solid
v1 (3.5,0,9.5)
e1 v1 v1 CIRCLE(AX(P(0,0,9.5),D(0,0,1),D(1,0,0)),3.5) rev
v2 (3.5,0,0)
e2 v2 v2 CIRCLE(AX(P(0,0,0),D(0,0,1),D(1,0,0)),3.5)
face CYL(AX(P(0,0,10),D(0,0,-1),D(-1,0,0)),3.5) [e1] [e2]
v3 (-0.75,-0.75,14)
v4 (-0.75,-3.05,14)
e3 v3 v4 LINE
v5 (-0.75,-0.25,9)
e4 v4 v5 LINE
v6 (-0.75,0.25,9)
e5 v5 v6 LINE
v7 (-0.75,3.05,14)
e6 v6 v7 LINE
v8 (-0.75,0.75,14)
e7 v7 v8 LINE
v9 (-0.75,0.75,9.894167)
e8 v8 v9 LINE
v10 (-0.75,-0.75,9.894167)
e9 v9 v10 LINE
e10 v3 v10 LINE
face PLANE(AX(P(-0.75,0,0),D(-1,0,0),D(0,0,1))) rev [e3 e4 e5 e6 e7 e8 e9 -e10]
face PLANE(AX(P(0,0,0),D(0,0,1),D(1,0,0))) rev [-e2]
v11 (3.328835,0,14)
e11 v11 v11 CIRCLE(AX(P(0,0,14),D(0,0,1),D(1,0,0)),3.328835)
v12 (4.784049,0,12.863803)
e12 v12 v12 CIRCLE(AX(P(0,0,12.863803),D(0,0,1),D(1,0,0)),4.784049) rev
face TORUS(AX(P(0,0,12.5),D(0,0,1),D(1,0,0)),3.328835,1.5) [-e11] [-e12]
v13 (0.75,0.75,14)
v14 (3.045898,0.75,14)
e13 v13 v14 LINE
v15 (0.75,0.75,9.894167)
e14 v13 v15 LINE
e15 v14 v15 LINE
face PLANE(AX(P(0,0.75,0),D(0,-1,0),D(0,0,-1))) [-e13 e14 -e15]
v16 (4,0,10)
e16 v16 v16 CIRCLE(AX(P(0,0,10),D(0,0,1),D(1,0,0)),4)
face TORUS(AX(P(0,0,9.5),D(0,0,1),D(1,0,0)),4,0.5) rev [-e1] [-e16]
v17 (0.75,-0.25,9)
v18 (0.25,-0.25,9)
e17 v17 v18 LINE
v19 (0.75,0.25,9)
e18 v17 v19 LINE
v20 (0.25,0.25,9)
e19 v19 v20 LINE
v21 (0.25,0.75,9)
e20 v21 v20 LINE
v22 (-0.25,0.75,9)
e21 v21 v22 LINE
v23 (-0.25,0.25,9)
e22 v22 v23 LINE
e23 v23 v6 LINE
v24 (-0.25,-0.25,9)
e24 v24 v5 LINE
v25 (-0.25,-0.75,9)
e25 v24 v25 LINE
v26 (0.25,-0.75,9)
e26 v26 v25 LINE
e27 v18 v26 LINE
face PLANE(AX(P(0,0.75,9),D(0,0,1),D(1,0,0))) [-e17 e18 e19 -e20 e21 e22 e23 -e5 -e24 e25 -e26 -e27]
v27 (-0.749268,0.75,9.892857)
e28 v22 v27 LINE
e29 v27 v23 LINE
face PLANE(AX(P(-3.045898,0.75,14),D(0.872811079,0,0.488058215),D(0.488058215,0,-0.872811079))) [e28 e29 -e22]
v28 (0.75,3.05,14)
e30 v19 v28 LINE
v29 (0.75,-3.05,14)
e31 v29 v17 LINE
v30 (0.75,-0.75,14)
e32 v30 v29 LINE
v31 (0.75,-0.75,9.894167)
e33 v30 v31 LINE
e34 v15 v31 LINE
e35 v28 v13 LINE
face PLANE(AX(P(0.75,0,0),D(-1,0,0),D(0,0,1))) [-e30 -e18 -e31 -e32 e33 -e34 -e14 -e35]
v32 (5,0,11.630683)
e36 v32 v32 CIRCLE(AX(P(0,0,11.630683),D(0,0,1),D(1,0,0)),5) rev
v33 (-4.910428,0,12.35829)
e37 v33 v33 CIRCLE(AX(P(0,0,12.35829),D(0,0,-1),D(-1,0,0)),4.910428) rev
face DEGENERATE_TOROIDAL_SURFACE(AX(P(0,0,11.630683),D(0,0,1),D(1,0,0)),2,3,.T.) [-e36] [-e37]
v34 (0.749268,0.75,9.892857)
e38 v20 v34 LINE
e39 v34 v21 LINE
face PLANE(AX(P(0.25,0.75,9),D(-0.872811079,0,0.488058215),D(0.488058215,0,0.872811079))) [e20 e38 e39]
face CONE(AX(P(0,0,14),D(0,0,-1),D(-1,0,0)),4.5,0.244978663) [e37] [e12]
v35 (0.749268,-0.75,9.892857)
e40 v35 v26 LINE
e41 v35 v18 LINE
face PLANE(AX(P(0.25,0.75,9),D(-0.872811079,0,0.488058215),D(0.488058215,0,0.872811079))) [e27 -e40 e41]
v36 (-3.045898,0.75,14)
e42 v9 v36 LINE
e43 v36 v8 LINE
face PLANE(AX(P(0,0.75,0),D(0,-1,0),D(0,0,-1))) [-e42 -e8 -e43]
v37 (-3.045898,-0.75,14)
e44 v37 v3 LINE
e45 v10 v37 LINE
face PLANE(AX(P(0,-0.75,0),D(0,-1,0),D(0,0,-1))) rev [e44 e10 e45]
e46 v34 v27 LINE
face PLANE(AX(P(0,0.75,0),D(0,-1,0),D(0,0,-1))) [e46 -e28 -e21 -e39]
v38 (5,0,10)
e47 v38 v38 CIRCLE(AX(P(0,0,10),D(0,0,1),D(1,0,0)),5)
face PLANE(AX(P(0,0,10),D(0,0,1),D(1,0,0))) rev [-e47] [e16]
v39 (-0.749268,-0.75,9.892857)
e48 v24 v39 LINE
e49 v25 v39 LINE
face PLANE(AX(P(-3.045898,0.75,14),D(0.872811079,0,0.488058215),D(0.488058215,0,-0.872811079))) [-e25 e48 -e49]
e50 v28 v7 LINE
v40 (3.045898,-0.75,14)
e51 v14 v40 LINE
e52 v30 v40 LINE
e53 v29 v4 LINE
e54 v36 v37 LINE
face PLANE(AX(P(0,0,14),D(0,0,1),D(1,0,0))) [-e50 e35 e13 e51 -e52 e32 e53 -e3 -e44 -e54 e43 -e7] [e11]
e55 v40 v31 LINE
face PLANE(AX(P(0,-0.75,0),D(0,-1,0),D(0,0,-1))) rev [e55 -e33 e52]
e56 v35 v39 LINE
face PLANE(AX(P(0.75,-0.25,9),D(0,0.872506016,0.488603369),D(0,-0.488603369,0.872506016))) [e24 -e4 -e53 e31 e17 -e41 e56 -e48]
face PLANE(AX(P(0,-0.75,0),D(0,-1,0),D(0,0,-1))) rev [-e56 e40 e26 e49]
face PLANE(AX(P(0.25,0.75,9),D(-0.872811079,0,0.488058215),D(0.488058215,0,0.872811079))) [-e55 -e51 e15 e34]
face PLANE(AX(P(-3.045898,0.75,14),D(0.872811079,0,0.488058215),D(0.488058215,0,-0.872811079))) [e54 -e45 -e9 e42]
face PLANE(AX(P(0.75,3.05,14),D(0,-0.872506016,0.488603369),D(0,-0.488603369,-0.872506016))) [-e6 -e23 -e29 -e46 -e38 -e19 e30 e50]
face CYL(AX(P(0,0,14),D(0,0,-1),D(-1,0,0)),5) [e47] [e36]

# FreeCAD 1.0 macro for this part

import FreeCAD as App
import Part
import Sketcher
Q = App.Units.Quantity


def edges_at(feature, points):
    """Names of the edges that pass closest to the given points."""
    edges = feature.Shape.Edges
    near = lambda p: min(range(len(edges)), key=lambda i: edges[i].distToShape(Part.Vertex(*p))[0])
    return sorted({f"Edge{near(p) + 1}" for p in points})

doc = App.newDocument("Part")
body = doc.addObject("PartDesign::Body", "Body")

# Sketch on XY plane
sketch1 = body.newObject("Sketcher::SketchObject", "Sketch")
sketch1.AttachmentSupport = (doc.getObject("XY_Plane"), [""])
sketch1.MapMode = "FlatFace"
sketch1.addGeometry(Part.Circle(App.Vector(0, 0, 0), App.Vector(0, 0, 1), 3.5), False)
sketch1.addConstraint(Sketcher.Constraint("Coincident", 0, 3, -1, 1))
sketch1.addConstraint(Sketcher.Constraint("Diameter", 0, Q("7 mm")))
pad1 = body.newObject("PartDesign::Pad", "Pad")
pad1.Profile = sketch1
pad1.Length = 10

# Sketch on XY plane
sketch2 = body.newObject("Sketcher::SketchObject", "Sketch001")
sketch2.AttachmentSupport = (doc.getObject("XY_Plane"), [""])
sketch2.MapMode = "FlatFace"
sketch2.AttachmentOffset = App.Placement(App.Vector(0, 0, 10), App.Rotation())
sketch2.addGeometry(Part.Circle(App.Vector(0, 0, 0), App.Vector(0, 0, 1), 5), False)
sketch2.addConstraint(Sketcher.Constraint("Coincident", 0, 3, -1, 1))
sketch2.addConstraint(Sketcher.Constraint("Diameter", 0, Q("10 mm")))
pad2 = body.newObject("PartDesign::Pad", "Pad001")
pad2.Profile = sketch2
pad2.Length = 4
doc.recompute()

chamfer = body.newObject("PartDesign::Chamfer", "Chamfer")
chamfer.Base = (pad2, edges_at(pad2, [(-5, 0, 14)]))
chamfer.ChamferType = "Two distances"
chamfer.Size = 2
chamfer.Size2 = 0.5
doc.recompute()

fillet = body.newObject("PartDesign::Fillet", "Fillet")
fillet.Base = (chamfer, edges_at(chamfer, [(-4.5, 0, 14)]))
fillet.Radius = 1.5
doc.recompute()

fillet2 = body.newObject("PartDesign::Fillet", "Fillet001")
fillet2.Base = (fillet, edges_at(fillet, [(-5, 0, 12)]))
fillet2.Radius = 3
doc.recompute()

fillet3 = body.newObject("PartDesign::Fillet", "Fillet002")
fillet3.Base = (fillet2, edges_at(fillet2, [(-3.5, 0, 10)]))
fillet3.Radius = 0.5

# Sketch on XZ plane
sketch3 = body.newObject("Sketcher::SketchObject", "Sketch002")
sketch3.AttachmentSupport = (doc.getObject("XZ_Plane"), [""])
sketch3.MapMode = "FlatFace"
sketch3.addGeometry(Part.LineSegment(App.Vector(-3, 14, 0), App.Vector(3, 14, 0)), False)
sketch3.addGeometry(Part.LineSegment(App.Vector(3, 14, 0), App.Vector(0.2, 9, 0)), False)
sketch3.addGeometry(Part.LineSegment(App.Vector(0.2, 9, 0), App.Vector(-0.2, 9, 0)), False)
sketch3.addGeometry(Part.LineSegment(App.Vector(-0.2, 9, 0), App.Vector(-3, 14, 0)), False)
sketch3.addConstraint(Sketcher.Constraint("Coincident", 0, 2, 1, 1))
sketch3.addConstraint(Sketcher.Constraint("Coincident", 1, 2, 2, 1))
sketch3.addConstraint(Sketcher.Constraint("Coincident", 2, 2, 3, 1))
sketch3.addConstraint(Sketcher.Constraint("Coincident", 3, 2, 0, 1))
sketch3.addConstraint(Sketcher.Constraint("Horizontal", 0))
sketch3.addConstraint(Sketcher.Constraint("Horizontal", 2))
sketch3.addConstraint(Sketcher.Constraint("Equal", 1, 3))
sketch3.addConstraint(Sketcher.Constraint("DistanceX", 2, 2, 2, 1, Q("0.5 mm")))
sketch3.addConstraint(Sketcher.Constraint("DistanceY", -1, 1, 0, 2, Q("14 mm")))
sketch3.addConstraint(Sketcher.Constraint("DistanceY", -1, 1, 1, 2, Q("9 mm")))
sketch3.addConstraint(Sketcher.Constraint("DistanceX", -1, 1, 1, 2, Q("0.25 mm")))
sketch3.addConstraint(Sketcher.Constraint("DistanceX", -1, 1, 0, 2, Q("3.045898 mm")))
pocket1 = body.newObject("PartDesign::Pocket", "Pocket")
pocket1.Profile = sketch3
pocket1.Type = "TwoLengths"
pocket1.Length = 0.75
pocket1.Length2 = 0.75

# Sketch on YZ plane
sketch4 = body.newObject("Sketcher::SketchObject", "Sketch003")
sketch4.AttachmentSupport = (doc.getObject("YZ_Plane"), [""])
sketch4.MapMode = "FlatFace"
sketch4.addGeometry(Part.LineSegment(App.Vector(0.2, 9, 0), App.Vector(3, 14, 0)), False)
sketch4.addGeometry(Part.LineSegment(App.Vector(3, 14, 0), App.Vector(-3, 14, 0)), False)
sketch4.addGeometry(Part.LineSegment(App.Vector(-3, 14, 0), App.Vector(-0.2, 9, 0)), False)
sketch4.addGeometry(Part.LineSegment(App.Vector(-0.2, 9, 0), App.Vector(0.2, 9, 0)), False)
sketch4.addConstraint(Sketcher.Constraint("Coincident", 0, 2, 1, 1))
sketch4.addConstraint(Sketcher.Constraint("Coincident", 1, 2, 2, 1))
sketch4.addConstraint(Sketcher.Constraint("Coincident", 2, 2, 3, 1))
sketch4.addConstraint(Sketcher.Constraint("Coincident", 3, 2, 0, 1))
sketch4.addConstraint(Sketcher.Constraint("Horizontal", 1))
sketch4.addConstraint(Sketcher.Constraint("Horizontal", 3))
sketch4.addConstraint(Sketcher.Constraint("Equal", 0, 2))
sketch4.addConstraint(Sketcher.Constraint("DistanceX", 1, 2, 1, 1, Q("6.1 mm")))
sketch4.addConstraint(Sketcher.Constraint("DistanceX", 3, 1, 3, 2, Q("0.5 mm")))
sketch4.addConstraint(Sketcher.Constraint("DistanceY", -1, 1, 0, 2, Q("14 mm")))
sketch4.addConstraint(Sketcher.Constraint("DistanceY", -1, 1, 2, 2, Q("9 mm")))
sketch4.addConstraint(Sketcher.Constraint("DistanceX", -1, 1, 0, 2, Q("3.05 mm")))
pocket2 = body.newObject("PartDesign::Pocket", "Pocket001")
pocket2.Profile = sketch4
pocket2.Type = "TwoLengths"
pocket2.Length = 0.75
pocket2.Length2 = 0.75
pocket2.Reversed = True

doc.recompute()
